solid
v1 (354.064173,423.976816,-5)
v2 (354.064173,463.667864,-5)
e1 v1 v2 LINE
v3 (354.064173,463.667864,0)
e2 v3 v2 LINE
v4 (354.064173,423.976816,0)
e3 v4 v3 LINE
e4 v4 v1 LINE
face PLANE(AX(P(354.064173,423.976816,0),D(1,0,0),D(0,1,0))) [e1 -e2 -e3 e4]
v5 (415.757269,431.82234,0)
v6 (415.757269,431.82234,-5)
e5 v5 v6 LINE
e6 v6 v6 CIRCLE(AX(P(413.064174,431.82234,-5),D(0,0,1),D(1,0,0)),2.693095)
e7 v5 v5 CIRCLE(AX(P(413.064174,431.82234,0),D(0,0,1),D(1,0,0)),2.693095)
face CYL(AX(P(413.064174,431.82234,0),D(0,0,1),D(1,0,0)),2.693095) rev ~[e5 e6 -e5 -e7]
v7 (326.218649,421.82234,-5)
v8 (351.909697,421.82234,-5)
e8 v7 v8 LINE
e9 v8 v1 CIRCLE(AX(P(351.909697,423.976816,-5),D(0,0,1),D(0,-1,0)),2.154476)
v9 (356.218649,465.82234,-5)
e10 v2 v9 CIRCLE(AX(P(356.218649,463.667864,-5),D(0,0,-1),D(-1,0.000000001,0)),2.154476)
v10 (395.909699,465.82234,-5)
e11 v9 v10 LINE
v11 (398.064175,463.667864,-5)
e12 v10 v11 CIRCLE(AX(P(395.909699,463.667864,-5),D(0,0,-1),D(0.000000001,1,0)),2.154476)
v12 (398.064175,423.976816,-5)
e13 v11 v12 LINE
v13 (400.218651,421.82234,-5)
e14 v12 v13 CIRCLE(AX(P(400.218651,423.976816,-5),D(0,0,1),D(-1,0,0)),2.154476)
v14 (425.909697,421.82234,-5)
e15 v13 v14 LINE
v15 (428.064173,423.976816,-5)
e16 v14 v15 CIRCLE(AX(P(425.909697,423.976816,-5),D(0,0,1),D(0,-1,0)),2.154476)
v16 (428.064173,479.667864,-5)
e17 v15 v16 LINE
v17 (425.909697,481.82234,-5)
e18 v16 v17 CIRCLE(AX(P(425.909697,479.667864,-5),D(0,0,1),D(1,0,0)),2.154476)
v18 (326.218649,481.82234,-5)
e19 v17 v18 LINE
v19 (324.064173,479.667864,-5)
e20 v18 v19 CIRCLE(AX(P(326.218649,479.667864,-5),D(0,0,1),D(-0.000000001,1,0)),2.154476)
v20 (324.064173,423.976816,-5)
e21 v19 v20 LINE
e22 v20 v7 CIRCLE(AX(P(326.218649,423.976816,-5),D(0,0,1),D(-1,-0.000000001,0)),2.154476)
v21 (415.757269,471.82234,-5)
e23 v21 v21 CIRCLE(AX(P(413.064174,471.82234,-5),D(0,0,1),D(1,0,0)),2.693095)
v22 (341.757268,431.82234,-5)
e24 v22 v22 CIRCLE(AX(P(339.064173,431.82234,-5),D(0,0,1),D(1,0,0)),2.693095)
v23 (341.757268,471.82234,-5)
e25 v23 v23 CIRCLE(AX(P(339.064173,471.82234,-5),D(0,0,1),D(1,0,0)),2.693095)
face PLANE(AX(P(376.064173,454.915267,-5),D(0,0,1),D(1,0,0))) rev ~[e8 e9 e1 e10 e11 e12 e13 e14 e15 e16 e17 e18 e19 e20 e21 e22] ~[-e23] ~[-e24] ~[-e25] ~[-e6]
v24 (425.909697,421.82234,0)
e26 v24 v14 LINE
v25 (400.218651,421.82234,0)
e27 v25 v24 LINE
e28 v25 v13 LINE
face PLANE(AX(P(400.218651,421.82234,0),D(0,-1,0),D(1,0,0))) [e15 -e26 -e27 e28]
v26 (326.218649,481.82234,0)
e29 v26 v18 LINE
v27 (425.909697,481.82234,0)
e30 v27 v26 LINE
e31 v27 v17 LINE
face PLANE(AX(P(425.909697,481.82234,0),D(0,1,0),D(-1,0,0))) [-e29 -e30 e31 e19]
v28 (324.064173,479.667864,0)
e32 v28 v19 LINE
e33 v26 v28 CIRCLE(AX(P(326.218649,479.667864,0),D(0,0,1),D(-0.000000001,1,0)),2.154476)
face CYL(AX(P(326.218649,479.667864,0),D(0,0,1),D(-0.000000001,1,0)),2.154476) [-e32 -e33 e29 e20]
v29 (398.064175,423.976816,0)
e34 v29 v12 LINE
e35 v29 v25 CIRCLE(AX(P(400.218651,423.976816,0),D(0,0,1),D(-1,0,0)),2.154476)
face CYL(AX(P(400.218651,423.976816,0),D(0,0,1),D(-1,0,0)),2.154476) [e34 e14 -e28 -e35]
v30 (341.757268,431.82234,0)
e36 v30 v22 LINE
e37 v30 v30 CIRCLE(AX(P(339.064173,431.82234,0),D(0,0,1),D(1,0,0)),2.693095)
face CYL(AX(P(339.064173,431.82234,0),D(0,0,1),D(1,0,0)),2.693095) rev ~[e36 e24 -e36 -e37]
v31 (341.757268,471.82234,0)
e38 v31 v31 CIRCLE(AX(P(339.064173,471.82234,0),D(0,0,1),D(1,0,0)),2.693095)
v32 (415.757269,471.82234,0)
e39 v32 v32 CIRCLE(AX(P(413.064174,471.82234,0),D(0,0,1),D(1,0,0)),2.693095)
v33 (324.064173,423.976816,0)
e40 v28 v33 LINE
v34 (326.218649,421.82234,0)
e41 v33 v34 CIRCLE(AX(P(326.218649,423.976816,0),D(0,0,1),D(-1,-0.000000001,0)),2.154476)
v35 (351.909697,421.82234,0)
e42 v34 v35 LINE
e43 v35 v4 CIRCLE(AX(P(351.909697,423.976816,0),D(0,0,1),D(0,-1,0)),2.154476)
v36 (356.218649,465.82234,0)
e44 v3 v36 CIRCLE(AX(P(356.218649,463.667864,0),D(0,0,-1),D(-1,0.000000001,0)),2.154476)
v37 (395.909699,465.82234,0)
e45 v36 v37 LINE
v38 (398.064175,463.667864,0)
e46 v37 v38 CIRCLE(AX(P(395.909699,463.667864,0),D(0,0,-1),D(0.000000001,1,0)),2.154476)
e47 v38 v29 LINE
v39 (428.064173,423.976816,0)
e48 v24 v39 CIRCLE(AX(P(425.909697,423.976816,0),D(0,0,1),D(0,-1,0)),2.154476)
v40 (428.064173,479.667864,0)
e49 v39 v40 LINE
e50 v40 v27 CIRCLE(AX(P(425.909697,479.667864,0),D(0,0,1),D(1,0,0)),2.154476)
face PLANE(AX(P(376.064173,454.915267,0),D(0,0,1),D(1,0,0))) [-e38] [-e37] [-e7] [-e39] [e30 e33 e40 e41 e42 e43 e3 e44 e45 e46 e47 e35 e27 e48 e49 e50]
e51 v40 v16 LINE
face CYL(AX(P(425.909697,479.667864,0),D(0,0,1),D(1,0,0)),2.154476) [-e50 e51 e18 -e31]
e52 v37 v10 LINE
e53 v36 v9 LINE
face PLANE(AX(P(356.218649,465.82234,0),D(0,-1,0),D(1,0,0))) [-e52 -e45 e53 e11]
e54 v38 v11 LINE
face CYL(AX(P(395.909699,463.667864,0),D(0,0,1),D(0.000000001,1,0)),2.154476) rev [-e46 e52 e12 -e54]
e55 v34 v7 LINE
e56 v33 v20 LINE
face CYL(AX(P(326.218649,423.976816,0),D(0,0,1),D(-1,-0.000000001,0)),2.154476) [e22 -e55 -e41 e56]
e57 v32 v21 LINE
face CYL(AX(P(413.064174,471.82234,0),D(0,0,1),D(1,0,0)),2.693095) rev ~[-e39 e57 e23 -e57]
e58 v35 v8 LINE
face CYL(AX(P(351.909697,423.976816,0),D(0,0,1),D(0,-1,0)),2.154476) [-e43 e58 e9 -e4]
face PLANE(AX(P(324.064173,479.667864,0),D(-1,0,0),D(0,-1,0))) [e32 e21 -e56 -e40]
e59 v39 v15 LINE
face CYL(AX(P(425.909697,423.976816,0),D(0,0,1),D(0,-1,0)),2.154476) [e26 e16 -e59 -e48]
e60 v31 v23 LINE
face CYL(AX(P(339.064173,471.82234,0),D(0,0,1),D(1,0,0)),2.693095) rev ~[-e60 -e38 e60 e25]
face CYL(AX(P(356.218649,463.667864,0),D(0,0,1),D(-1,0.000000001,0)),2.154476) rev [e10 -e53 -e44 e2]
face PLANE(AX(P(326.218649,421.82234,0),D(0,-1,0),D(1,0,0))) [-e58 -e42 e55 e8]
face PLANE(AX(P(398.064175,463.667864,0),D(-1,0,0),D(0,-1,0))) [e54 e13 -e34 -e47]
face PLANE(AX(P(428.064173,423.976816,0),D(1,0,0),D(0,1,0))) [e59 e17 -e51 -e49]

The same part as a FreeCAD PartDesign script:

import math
import FreeCAD as App
import Part
import Sketcher

doc = App.newDocument("Part")
params = doc.addObject("Spreadsheet::Sheet", "Params")
for row, (alias, value) in enumerate([
    ("pad1_length", "5 mm"),
], start=1):
    params.set(f"A{row}", alias)
    params.set(f"B{row}", "=" + value)
    params.setAlias(f"B{row}", alias)

body = doc.addObject("PartDesign::Body", "Body")

sketch1 = body.newObject("Sketcher::SketchObject", "Sketch")
sketch1.AttachmentSupport = (doc.getObject("XY_Plane"), [""])
sketch1.MapMode = "FlatFace"
sketch1.addGeometry([
    Part.LineSegment(App.Vector(326.218649, 421.82234, 0), App.Vector(351.909697, 421.82234, 0)),
    Part.ArcOfCircle(Part.Circle(App.Vector(351.909697, 423.976816, 0), App.Vector(0, 0, 1), 2.154476), math.radians(-90), math.radians(0)),
    Part.LineSegment(App.Vector(354.064173, 423.976816, 0), App.Vector(354.064173, 463.667864, 0)),
    Part.ArcOfCircle(Part.Circle(App.Vector(356.218649, 463.667864, 0), App.Vector(0, 0, 1), 2.154476), math.radians(90), math.radians(180)),
    Part.LineSegment(App.Vector(356.218649, 465.82234, 0), App.Vector(395.909699, 465.82234, 0)),
    Part.ArcOfCircle(Part.Circle(App.Vector(395.909699, 463.667864, 0), App.Vector(0, 0, 1), 2.154476), math.radians(0), math.radians(90)),
    Part.LineSegment(App.Vector(398.064175, 463.667864, 0), App.Vector(398.064175, 423.976816, 0)),
    Part.ArcOfCircle(Part.Circle(App.Vector(400.218651, 423.976816, 0), App.Vector(0, 0, 1), 2.154476), math.radians(180), math.radians(270)),
    Part.LineSegment(App.Vector(400.218651, 421.82234, 0), App.Vector(425.909697, 421.82234, 0)),
    Part.ArcOfCircle(Part.Circle(App.Vector(425.909697, 423.976816, 0), App.Vector(0, 0, 1), 2.154476), math.radians(-90), math.radians(0)),
    Part.LineSegment(App.Vector(428.064173, 423.976816, 0), App.Vector(428.064173, 479.667864, 0)),
    Part.ArcOfCircle(Part.Circle(App.Vector(425.909697, 479.667864, 0), App.Vector(0, 0, 1), 2.154476), math.radians(0), math.radians(90)),
    Part.LineSegment(App.Vector(425.909697, 481.82234, 0), App.Vector(326.218649, 481.82234, 0)),
    Part.ArcOfCircle(Part.Circle(App.Vector(326.218649, 479.667864, 0), App.Vector(0, 0, 1), 2.154476), math.radians(90), math.radians(180)),
    Part.LineSegment(App.Vector(324.064173, 479.667864, 0), App.Vector(324.064173, 423.976816, 0)),
    Part.ArcOfCircle(Part.Circle(App.Vector(326.218649, 423.976816, 0), App.Vector(0, 0, 1), 2.154476), math.radians(-180), math.radians(-90)),
    Part.Circle(App.Vector(339.064173, 431.82234, 0), App.Vector(0, 0, 1), 2.693095),
    Part.Circle(App.Vector(413.064174, 431.82234, 0), App.Vector(0, 0, 1), 2.693095),
    Part.Circle(App.Vector(339.064173, 471.82234, 0), App.Vector(0, 0, 1), 2.693095),
    Part.Circle(App.Vector(413.064174, 471.82234, 0), App.Vector(0, 0, 1), 2.693095),
], False)
sketch1.addConstraint([
    Sketcher.Constraint("Tangent", 0, 2, 1, 1),
    Sketcher.Constraint("Tangent", 1, 2, 2, 1),
    Sketcher.Constraint("Tangent", 2, 2, 3, 2),
    Sketcher.Constraint("Tangent", 3, 1, 4, 1),
    Sketcher.Constraint("Tangent", 4, 2, 5, 2),
    Sketcher.Constraint("Tangent", 5, 1, 6, 1),
    Sketcher.Constraint("Tangent", 6, 2, 7, 1),
    Sketcher.Constraint("Tangent", 7, 2, 8, 1),
    Sketcher.Constraint("Tangent", 8, 2, 9, 1),
    Sketcher.Constraint("Tangent", 9, 2, 10, 1),
    Sketcher.Constraint("Tangent", 10, 2, 11, 1),
    Sketcher.Constraint("Tangent", 11, 2, 12, 1),
    Sketcher.Constraint("Tangent", 12, 2, 13, 1),
    Sketcher.Constraint("Tangent", 13, 2, 14, 1),
    Sketcher.Constraint("Tangent", 14, 2, 15, 1),
    Sketcher.Constraint("Tangent", 15, 2, 0, 1),
    Sketcher.Constraint("Horizontal", 0),
    Sketcher.Constraint("Vertical", 2),
    Sketcher.Constraint("Horizontal", 4),
    Sketcher.Constraint("Vertical", 6),
    Sketcher.Constraint("Horizontal", 8),
    Sketcher.Constraint("Vertical", 10),
    Sketcher.Constraint("Horizontal", 12),
    Sketcher.Constraint("Vertical", 14),
    Sketcher.Constraint("Equal", 1, 3),
    Sketcher.Constraint("Equal", 3, 5),
    Sketcher.Constraint("Equal", 5, 7),
    Sketcher.Constraint("Equal", 7, 9),
    Sketcher.Constraint("Equal", 9, 11),
    Sketcher.Constraint("Equal", 11, 13),
    Sketcher.Constraint("Equal", 13, 15),
    Sketcher.Constraint("Equal", 16, 17),
    Sketcher.Constraint("Equal", 17, 18),
    Sketcher.Constraint("Equal", 18, 19),
    Sketcher.Constraint("Horizontal", 1, 3, 7, 3),
    Sketcher.Constraint("Horizontal", 16, 3, 17, 3),
    Sketcher.Constraint("Horizontal", 18, 3, 19, 3),
    Sketcher.Constraint("Vertical", 16, 3, 18, 3),
    Sketcher.Constraint("Vertical", 17, 3, 19, 3),
    Sketcher.Constraint("DistanceX", 1, 3, 9, 3, 74.0),
    Sketcher.Constraint("DistanceY", 5, 3, 11, 3, 16.0),
    Sketcher.Constraint("DistanceX", 13, 3, 3, 3, 30.0),
    Sketcher.Constraint("DistanceY", 16, 3, 18, 3, 40.0),
    Sketcher.Constraint("DistanceY", 0, 2, 16, 3, 10.0),
    Sketcher.Constraint("DistanceX", 16, 3, 1, 2, 15.0),
    Sketcher.Constraint("DistanceY", 3, 1, 18, 3, 6.0),
    Sketcher.Constraint("DistanceX", 5, 1, 19, 3, 14.999999),
    Sketcher.Constraint("DistanceX", 17, 3, 9, 2, 14.999999),
    Sketcher.Constraint("Diameter", 16, 5.38619),
    Sketcher.Constraint("Radius", 1, 2.154476),
    Sketcher.Constraint("DistanceX", -1, 1, 5, 3, 395.909699),
    Sketcher.Constraint("DistanceY", -1, 1, 16, 3, 431.82234),
])
pad1 = body.newObject("PartDesign::Pad", "Pad")
pad1.Profile = sketch1
pad1.setExpression("Length", "Params.pad1_length")
pad1.Reversed = True

doc.recompute()
